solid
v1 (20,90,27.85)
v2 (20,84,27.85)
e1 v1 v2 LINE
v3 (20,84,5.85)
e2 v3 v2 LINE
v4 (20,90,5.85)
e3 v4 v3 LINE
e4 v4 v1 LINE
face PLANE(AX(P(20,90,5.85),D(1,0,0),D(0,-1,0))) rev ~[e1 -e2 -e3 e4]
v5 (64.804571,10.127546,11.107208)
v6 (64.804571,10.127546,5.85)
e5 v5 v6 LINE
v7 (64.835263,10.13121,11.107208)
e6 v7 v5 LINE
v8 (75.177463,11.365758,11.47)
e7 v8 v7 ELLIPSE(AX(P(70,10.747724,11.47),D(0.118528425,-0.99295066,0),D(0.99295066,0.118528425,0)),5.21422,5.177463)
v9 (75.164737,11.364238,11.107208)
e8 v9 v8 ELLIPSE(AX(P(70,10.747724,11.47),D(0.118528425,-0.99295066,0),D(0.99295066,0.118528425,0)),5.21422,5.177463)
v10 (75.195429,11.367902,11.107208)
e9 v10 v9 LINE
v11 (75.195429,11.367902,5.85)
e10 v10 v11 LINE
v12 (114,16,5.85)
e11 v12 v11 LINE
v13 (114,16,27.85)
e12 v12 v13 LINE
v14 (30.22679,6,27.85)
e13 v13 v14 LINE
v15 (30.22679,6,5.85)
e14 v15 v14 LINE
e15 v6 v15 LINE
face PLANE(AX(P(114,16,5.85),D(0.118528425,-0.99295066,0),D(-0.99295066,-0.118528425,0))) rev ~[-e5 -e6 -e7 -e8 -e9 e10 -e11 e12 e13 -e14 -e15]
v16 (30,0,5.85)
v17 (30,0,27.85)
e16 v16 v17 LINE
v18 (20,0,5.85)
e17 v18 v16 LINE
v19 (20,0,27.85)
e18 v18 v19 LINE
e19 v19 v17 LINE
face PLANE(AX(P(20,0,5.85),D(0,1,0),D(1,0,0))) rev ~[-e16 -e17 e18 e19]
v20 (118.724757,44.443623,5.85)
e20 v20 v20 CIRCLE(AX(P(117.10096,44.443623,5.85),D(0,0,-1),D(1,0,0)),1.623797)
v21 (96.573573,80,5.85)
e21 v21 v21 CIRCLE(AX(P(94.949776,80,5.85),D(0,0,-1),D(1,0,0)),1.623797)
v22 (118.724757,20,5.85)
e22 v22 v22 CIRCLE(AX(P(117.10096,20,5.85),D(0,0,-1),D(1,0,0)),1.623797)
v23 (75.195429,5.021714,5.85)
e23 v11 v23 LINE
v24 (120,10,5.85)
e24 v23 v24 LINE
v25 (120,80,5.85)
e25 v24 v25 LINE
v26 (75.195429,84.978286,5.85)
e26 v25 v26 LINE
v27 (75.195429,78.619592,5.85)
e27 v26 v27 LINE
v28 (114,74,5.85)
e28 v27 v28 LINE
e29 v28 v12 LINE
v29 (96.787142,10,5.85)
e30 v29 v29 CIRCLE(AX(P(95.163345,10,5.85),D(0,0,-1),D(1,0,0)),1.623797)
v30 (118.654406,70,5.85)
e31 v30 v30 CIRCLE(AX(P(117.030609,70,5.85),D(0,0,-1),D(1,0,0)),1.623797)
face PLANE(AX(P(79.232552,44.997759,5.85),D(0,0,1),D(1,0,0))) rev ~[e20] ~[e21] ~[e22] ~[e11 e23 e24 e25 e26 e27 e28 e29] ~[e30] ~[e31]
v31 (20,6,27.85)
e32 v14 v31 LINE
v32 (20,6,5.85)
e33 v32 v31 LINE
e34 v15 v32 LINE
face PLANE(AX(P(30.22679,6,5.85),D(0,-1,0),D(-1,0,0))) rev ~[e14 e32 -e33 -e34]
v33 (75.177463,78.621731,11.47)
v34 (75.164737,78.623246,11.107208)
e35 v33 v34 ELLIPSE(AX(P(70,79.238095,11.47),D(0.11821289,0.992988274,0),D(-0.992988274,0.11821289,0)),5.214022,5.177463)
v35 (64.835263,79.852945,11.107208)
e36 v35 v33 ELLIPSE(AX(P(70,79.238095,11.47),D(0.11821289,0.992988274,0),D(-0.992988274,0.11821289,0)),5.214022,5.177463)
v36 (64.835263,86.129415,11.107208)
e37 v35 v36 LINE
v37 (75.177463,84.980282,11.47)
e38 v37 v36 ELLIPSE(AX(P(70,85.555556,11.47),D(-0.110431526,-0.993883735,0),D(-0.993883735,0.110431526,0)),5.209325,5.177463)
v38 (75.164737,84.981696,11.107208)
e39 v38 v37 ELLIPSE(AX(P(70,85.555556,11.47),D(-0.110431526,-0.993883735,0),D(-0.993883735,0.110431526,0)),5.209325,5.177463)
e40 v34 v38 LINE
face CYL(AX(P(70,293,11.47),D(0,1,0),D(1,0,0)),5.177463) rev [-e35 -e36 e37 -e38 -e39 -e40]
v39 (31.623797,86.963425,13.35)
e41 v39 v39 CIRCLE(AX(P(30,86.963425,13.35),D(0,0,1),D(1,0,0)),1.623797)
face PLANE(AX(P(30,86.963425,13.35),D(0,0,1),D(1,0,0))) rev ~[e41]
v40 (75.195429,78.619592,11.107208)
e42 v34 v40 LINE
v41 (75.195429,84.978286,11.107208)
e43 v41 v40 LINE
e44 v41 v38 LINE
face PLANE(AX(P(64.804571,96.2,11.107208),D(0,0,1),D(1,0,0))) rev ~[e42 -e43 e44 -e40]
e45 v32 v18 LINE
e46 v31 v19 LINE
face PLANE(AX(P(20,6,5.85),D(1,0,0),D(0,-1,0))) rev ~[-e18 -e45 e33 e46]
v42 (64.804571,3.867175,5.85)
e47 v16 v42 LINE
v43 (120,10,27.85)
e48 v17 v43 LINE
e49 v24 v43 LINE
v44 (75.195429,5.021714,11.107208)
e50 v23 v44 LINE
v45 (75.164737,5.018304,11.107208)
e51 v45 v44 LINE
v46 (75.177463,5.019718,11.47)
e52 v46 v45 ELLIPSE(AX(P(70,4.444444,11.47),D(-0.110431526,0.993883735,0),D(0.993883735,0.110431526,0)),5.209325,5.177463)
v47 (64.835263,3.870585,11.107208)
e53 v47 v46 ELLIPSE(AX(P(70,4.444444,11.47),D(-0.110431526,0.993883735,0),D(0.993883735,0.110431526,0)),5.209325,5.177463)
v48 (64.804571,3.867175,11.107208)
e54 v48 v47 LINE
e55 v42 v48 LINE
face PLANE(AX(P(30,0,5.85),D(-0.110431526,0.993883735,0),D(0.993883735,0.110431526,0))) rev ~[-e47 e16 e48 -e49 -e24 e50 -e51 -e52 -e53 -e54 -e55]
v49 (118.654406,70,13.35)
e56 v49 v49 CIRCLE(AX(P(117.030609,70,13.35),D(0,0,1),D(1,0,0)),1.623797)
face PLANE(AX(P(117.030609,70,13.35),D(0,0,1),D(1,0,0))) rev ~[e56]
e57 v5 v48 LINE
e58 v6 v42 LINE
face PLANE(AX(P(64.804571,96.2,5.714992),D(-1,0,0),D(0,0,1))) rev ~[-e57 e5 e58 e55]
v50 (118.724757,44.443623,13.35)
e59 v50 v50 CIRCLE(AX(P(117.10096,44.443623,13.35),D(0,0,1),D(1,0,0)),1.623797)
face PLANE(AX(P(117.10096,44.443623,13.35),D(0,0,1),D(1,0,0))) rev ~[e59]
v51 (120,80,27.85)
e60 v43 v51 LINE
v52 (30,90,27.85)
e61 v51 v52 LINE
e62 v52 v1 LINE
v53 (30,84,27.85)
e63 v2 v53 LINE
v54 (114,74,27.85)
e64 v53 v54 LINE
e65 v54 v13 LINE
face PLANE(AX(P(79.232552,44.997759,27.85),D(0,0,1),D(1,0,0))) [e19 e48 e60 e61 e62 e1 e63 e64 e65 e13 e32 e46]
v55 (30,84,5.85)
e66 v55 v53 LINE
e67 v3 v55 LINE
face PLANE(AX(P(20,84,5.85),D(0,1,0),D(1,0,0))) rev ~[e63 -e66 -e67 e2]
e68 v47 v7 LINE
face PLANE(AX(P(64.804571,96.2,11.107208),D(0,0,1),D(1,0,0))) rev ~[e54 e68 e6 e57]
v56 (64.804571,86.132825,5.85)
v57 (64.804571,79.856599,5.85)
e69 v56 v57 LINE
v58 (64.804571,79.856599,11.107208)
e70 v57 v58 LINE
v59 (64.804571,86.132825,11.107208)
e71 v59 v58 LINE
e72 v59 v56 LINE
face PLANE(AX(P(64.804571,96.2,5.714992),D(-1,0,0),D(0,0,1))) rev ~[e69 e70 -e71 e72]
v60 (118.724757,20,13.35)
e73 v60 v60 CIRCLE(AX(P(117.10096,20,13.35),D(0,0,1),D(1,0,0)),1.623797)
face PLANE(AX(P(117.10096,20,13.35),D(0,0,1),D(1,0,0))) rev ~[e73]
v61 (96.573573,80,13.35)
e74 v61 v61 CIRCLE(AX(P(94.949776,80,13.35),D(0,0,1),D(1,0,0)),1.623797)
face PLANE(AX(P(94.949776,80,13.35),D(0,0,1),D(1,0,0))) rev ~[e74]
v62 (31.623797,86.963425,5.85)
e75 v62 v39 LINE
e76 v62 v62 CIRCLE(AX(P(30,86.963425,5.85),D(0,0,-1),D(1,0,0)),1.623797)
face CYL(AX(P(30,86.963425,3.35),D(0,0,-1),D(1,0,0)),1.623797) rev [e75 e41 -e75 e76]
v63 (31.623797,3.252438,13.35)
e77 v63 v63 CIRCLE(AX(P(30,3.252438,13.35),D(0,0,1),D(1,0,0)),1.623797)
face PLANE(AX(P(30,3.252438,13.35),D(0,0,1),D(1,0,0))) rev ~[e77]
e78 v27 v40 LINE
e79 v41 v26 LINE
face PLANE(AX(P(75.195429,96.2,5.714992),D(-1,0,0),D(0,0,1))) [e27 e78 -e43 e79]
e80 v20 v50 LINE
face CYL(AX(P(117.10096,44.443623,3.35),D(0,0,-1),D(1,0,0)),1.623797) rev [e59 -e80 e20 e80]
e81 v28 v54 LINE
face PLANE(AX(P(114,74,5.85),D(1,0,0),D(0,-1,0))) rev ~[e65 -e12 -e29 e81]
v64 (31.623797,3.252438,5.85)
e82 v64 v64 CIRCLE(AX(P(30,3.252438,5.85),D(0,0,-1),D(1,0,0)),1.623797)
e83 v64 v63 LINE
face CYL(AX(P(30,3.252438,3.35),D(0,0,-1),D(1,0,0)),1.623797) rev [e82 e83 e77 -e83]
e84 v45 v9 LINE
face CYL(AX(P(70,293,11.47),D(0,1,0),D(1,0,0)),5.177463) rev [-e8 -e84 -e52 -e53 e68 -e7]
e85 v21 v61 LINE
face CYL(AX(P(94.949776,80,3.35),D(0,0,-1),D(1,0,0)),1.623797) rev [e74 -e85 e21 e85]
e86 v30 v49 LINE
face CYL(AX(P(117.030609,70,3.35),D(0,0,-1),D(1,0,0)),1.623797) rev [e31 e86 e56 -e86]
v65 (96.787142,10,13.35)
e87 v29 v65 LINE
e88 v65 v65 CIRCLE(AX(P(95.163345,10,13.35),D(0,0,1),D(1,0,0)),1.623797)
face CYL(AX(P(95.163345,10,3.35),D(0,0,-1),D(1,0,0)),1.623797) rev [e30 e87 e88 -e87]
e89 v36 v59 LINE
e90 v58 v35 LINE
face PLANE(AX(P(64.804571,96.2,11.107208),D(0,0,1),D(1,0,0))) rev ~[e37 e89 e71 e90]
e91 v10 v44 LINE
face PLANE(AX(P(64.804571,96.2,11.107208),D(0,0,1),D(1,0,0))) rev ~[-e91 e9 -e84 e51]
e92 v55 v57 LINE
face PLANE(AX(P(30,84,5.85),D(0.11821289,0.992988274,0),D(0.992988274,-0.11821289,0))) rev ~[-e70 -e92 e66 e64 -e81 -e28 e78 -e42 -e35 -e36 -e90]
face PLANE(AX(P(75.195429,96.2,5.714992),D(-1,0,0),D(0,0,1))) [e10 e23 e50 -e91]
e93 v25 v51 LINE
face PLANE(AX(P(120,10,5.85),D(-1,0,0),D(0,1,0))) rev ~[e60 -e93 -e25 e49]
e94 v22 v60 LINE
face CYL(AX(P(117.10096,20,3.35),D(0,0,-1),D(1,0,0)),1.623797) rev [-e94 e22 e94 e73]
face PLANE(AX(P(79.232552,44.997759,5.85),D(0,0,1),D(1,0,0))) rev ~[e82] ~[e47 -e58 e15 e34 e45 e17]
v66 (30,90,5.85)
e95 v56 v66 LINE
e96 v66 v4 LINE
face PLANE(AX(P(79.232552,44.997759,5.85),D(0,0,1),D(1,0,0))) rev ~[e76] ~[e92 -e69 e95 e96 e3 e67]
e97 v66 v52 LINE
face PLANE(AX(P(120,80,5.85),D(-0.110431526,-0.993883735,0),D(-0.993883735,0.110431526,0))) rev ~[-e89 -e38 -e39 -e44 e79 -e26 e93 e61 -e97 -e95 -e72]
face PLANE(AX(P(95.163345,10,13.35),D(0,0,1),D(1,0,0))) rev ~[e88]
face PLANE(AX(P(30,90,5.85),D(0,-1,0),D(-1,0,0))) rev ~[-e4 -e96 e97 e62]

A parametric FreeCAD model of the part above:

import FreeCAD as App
import Part
import Sketcher
Q = App.Units.Quantity


def add_polygon(sketch, points):
    """Adds a closed chain of lines whose ends are joined by coincident constraints."""
    first, n = sketch.GeometryCount, len(points)
    for a, b in zip(points, points[1:] + points[:1]):
        sketch.addGeometry(Part.LineSegment(App.Vector(*a, 0), App.Vector(*b, 0)), False)
    for i in range(n):
        sketch.addConstraint(Sketcher.Constraint("Coincident", first + i, 2, first + (i + 1) % n, 1))

doc = App.newDocument("Part")
params = doc.addObject("Spreadsheet::Sheet", "Params")
for row, (alias, value) in enumerate([
    ("pad1_length", "100 mm"),
    ("pad2_length", "10 mm"),
    ("pad3_length", "800 mm"),
    ("sketch4_width", "10 mm"),
    ("sketch4_height", "70 mm"),
    ("sketch4_height2", "6 mm"),
    ("sketch4_height3", "58 mm"),
    ("pad4_length", "22 mm"),
], start=1):
    params.set(f"A{row}", alias)
    params.set(f"B{row}", "=" + value)
    params.setAlias(f"B{row}", alias)

body = doc.addObject("PartDesign::Body", "Body")

sketch1 = body.newObject("Sketcher::SketchObject", "Sketch")
sketch1.AttachmentSupport = (doc.getObject("XZ_Plane"), [""])
sketch1.MapMode = "FlatFace"
add_polygon(sketch1, [(65, -5), (65, -10), (75, -10), (75, -5)])
sketch1.addConstraint(Sketcher.Constraint("Vertical", 0))
sketch1.addConstraint(Sketcher.Constraint("Horizontal", 1))
sketch1.addConstraint(Sketcher.Constraint("Vertical", 2))
sketch1.addConstraint(Sketcher.Constraint("Horizontal", 3))
sketch1.addConstraint(Sketcher.Constraint("DistanceX", 1, 1, 1, 2, Q("10.390858 mm")))
sketch1.addConstraint(Sketcher.Constraint("DistanceY", 0, 2, 0, 1, Q("5.392216 mm")))
sketch1.addConstraint(Sketcher.Constraint("DistanceX", -1, 1, 0, 2, Q("64.804571 mm")))
sketch1.addConstraint(Sketcher.Constraint("DistanceY", 0, 2, -1, 1, Q("10.035008 mm")))
pad1 = body.newObject("PartDesign::Pad", "Pad")
pad1.Profile = sketch1
pad1.setExpression("Length", "Params.pad1_length")
body2 = doc.addObject("PartDesign::Body", "Body001")
doc.recompute()

body.Placement = App.Placement(App.Vector(0, 96.2, 0), App.Rotation(App.Vector(0, 0, 1), 0))
boolean = body2.newObject("PartDesign::Boolean", "Boolean")
boolean.Type = "Fuse"
boolean.addObjects([body])
body3 = doc.addObject("PartDesign::Body", "Body002")
body3.AllowCompound = True

sketch2 = body3.newObject("Sketcher::SketchObject", "Sketch001")
sketch2.AttachmentSupport = (doc.getObject("XY_Plane002"), [""])
sketch2.MapMode = "FlatFace"
sketch2.AttachmentOffset = App.Placement(App.Vector(0, 0, 12.1), App.Rotation())
sketch2.addGeometry(Part.Circle(App.Vector(30, 87, 0), App.Vector(0, 0, 1), 1.6), False)
sketch2.addGeometry(Part.Circle(App.Vector(30, 3.3, 0), App.Vector(0, 0, 1), 1.6), False)
sketch2.addGeometry(Part.Circle(App.Vector(95.2, 10, 0), App.Vector(0, 0, 1), 1.6), False)
sketch2.addGeometry(Part.Circle(App.Vector(94.9, 80, 0), App.Vector(0, 0, 1), 1.6), False)
sketch2.addGeometry(Part.Circle(App.Vector(117.1, 20, 0), App.Vector(0, 0, 1), 1.6), False)
sketch2.addGeometry(Part.Circle(App.Vector(117, 70, 0), App.Vector(0, 0, 1), 1.6), False)
sketch2.addGeometry(Part.Circle(App.Vector(117.1, 44.4, 0), App.Vector(0, 0, 1), 1.6), False)
sketch2.addConstraint(Sketcher.Constraint("Equal", 0, 1))
sketch2.addConstraint(Sketcher.Constraint("Equal", 1, 2))
sketch2.addConstraint(Sketcher.Constraint("Equal", 2, 3))
sketch2.addConstraint(Sketcher.Constraint("Equal", 3, 4))
sketch2.addConstraint(Sketcher.Constraint("Equal", 4, 5))
sketch2.addConstraint(Sketcher.Constraint("Equal", 5, 6))
sketch2.addConstraint(Sketcher.Constraint("Vertical", 0, 3, 1, 3))
sketch2.addConstraint(Sketcher.Constraint("Vertical", 4, 3, 6, 3))
sketch2.addConstraint(Sketcher.Constraint("DistanceX", -1, 1, 0, 3, Q("30 mm")))
sketch2.addConstraint(Sketcher.Constraint("DistanceY", -1, 1, 2, 3, Q("10 mm")))
sketch2.addConstraint(Sketcher.Constraint("DistanceY", -1, 1, 3, 3, Q("80 mm")))
sketch2.addConstraint(Sketcher.Constraint("DistanceY", -1, 1, 4, 3, Q("20 mm")))
sketch2.addConstraint(Sketcher.Constraint("DistanceY", -1, 1, 5, 3, Q("70 mm")))
sketch2.addConstraint(Sketcher.Constraint("Diameter", 0, Q("3.247594 mm")))
sketch2.addConstraint(Sketcher.Constraint("DistanceY", -1, 1, 1, 3, Q("3.252438 mm")))
sketch2.addConstraint(Sketcher.Constraint("DistanceX", -1, 1, 4, 3, Q("117.10096 mm")))
sketch2.addConstraint(Sketcher.Constraint("DistanceX", -1, 1, 5, 3, Q("117.030609 mm")))
sketch2.addConstraint(Sketcher.Constraint("DistanceX", 3, 3, 2, 3, Q("0.213569 mm")))
sketch2.addConstraint(Sketcher.Constraint("DistanceY", -1, 1, 0, 3, Q("86.963425 mm")))
sketch2.addConstraint(Sketcher.Constraint("DistanceX", -1, 1, 2, 3, Q("95.163345 mm")))
sketch2.addConstraint(Sketcher.Constraint("DistanceY", -1, 1, 6, 3, Q("44.443623 mm")))
pad2 = body3.newObject("PartDesign::Pad", "Pad001")
pad2.Profile = sketch2
pad2.setExpression("Length", "Params.pad2_length")
body4 = doc.addObject("PartDesign::Body", "Body003")
body4.AllowCompound = True
doc.recompute()

body3.Placement = App.Placement(App.Vector(0, 0, -24.5), App.Rotation(App.Vector(0, 0, 1), 0))
boolean2 = body4.newObject("PartDesign::Boolean", "Boolean001")
boolean2.Type = "Fuse"
boolean2.addObjects([body3])
body5 = doc.addObject("PartDesign::Body", "Body004")

sketch3 = body5.newObject("Sketcher::SketchObject", "Sketch002")
sketch3.AttachmentSupport = (doc.getObject("XZ_Plane004"), [""])
sketch3.MapMode = "FlatFace"
sketch3.addGeometry(Part.Circle(App.Vector(70, 4, 0), App.Vector(0, 0, 1), 5), False)
sketch3.addConstraint(Sketcher.Constraint("DistanceX", -1, 1, 0, 3, Q("70 mm")))
sketch3.addConstraint(Sketcher.Constraint("DistanceY", -1, 1, 0, 3, Q("3.62 mm")))
sketch3.addConstraint(Sketcher.Constraint("Diameter", 0, Q("10.354926 mm")))
pad3 = body5.newObject("PartDesign::Pad", "Pad002")
pad3.Profile = sketch3
pad3.setExpression("Length", "Params.pad3_length")
body6 = doc.addObject("PartDesign::Body", "Body005")
doc.recompute()

body5.Placement = App.Placement(App.Vector(0, 293, 0), App.Rotation(App.Vector(0, 0, 1), 0))
boolean3 = body6.newObject("PartDesign::Boolean", "Boolean002")
boolean3.Type = "Fuse"
boolean3.addObjects([body5])
body7 = doc.addObject("PartDesign::Body", "Body006")

sketch4 = body7.newObject("Sketcher::SketchObject", "Sketch003")
sketch4.AttachmentSupport = (doc.getObject("XY_Plane006"), [""])
sketch4.MapMode = "FlatFace"
add_polygon(sketch4, [(30, 0), (120, 10), (120, 80), (30, 90), (20, 90), (20, 84), (30, 84), (114, 74), (114, 16), (30, 6), (20, 6), (20, 0)])
sketch4.addConstraint(Sketcher.Constraint("Vertical", 1))
sketch4.addConstraint(Sketcher.Constraint("Horizontal", 3))
sketch4.addConstraint(Sketcher.Constraint("Vertical", 4))
sketch4.addConstraint(Sketcher.Constraint("Horizontal", 5))
sketch4.addConstraint(Sketcher.Constraint("Vertical", 7))
sketch4.addConstraint(Sketcher.Constraint("Horizontal", 9))
sketch4.addConstraint(Sketcher.Constraint("Vertical", 10))
sketch4.addConstraint(Sketcher.Constraint("Horizontal", 11))
sketch4.addConstraint(Sketcher.Constraint("PointOnObject", 10, 2, -1))
sketch4.addConstraint(Sketcher.Constraint("Vertical", 2, 2, 5, 2))
sketch4.addConstraint(Sketcher.Constraint("Vertical", 4, 2, 9, 2))
sketch4.addConstraint(Sketcher.Constraint("Vertical", 5, 2, 11, 2))
sketch4.addConstraint(Sketcher.Constraint("Equal", 4, 10))
sketch4.addConstraint(Sketcher.Constraint("Equal", 0, 2))
sketch4.addConstraint(Sketcher.Constraint("DistanceX", 3, 2, 3, 1, Q("10 mm")))
sketch4.addConstraint(Sketcher.Constraint("DistanceY", 1, 1, 1, 2, Q("70 mm")))
sketch4.addConstraint(Sketcher.Constraint("DistanceY", 4, 2, 4, 1, Q("6 mm")))
sketch4.addConstraint(Sketcher.Constraint("DistanceY", 7, 2, 7, 1, Q("58 mm")))
sketch4.addConstraint(Sketcher.Constraint("DistanceX", -1, 1, 0, 2, Q("120 mm")))
sketch4.addConstraint(Sketcher.Constraint("DistanceY", -1, 1, 0, 2, Q("10 mm")))
sketch4.addConstraint(Sketcher.Constraint("DistanceX", -1, 1, 2, 2, Q("30 mm")))
sketch4.addConstraint(Sketcher.Constraint("DistanceX", -1, 1, 6, 2, Q("114 mm")))
sketch4.addConstraint(Sketcher.Constraint("DistanceY", -1, 1, 6, 2, Q("74 mm")))
sketch4.addConstraint(Sketcher.Constraint("DistanceX", 9, 2, 9, 1, Q("10.22679 mm")))
sketch4.setExpression("Constraints[26]", "Params.sketch4_width")
sketch4.setExpression("Constraints[27]", "Params.sketch4_height")
sketch4.setExpression("Constraints[28]", "Params.sketch4_height2")
sketch4.setExpression("Constraints[29]", "Params.sketch4_height3")
pad4 = body7.newObject("PartDesign::Pad", "Pad003")
pad4.Profile = sketch4
pad4.setExpression("Length", "Params.pad4_length")
body8 = doc.addObject("PartDesign::Body", "Body007")
doc.recompute()

body7.Placement = App.Placement(App.Vector(0, 0, -2), App.Rotation(App.Vector(0, 0, 1), 0))
boolean4 = body8.newObject("PartDesign::Boolean", "Boolean003")
boolean4.Type = "Fuse"
boolean4.addObjects([body7])
doc.recompute()

boolean5 = body8.newObject("PartDesign::Boolean", "Boolean004")
boolean5.Type = "Cut"
boolean5.addObjects([body6])
body9 = doc.addObject("PartDesign::Body", "Body008")
doc.recompute()

body8.Placement = App.Placement(App.Vector(0, 0, -7.9), App.Rotation(App.Vector(0, 0, 1), 0))
boolean6 = body9.newObject("PartDesign::Boolean", "Boolean005")
boolean6.Type = "Fuse"
boolean6.addObjects([body8])
doc.recompute()

boolean7 = body9.newObject("PartDesign::Boolean", "Boolean006")
boolean7.Type = "Cut"
boolean7.addObjects([body4])
doc.recompute()

boolean8 = body9.newObject("PartDesign::Boolean", "Boolean007")
boolean8.Type = "Cut"
boolean8.addObjects([body2])
body10 = doc.addObject("PartDesign::Body", "Body009")
doc.recompute()

body9.Placement = App.Placement(App.Vector(0, 0, 15.75), App.Rotation(App.Vector(0, 0, 1), 0))
boolean9 = body10.newObject("PartDesign::Boolean", "Boolean008")
boolean9.Type = "Fuse"
boolean9.addObjects([body9])

doc.recompute()
